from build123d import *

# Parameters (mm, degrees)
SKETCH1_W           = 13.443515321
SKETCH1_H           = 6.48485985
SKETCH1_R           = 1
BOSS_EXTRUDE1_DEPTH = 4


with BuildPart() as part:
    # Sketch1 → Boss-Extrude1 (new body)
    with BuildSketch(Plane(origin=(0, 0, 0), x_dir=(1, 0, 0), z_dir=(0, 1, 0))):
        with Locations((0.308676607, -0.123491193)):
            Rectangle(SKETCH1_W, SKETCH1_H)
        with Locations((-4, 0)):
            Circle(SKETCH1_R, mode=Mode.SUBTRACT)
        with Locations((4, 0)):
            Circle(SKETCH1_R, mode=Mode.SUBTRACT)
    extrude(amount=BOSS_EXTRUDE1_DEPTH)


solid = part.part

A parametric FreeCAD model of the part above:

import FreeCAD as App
import Part
import Sketcher

doc = App.newDocument("Part")
params = doc.addObject("Spreadsheet::Sheet", "Params")
for row, (alias, value) in enumerate([
    ("sketch1_diameter", "2 mm"),
    ("pad1_length", "4 mm"),
], start=1):
    params.set(f"A{row}", alias)
    params.set(f"B{row}", "=" + value)
    params.setAlias(f"B{row}", alias)

body = doc.addObject("PartDesign::Body", "Body")

# Sketch on XZ plane
sketch1 = body.newObject("Sketcher::SketchObject", "Sketch")
sketch1.AttachmentSupport = (doc.getObject("XZ_Plane"), [""])
sketch1.MapMode = "FlatFace"
sketch1.addGeometry([
    Part.LineSegment(App.Vector(-6.4, -3.1, 0), App.Vector(-6.4, 3.4, 0)),  # 0
    Part.LineSegment(App.Vector(-6.4, 3.4, 0), App.Vector(7, 3.4, 0)),  # 1
    Part.LineSegment(App.Vector(7, 3.4, 0), App.Vector(7, -3.1, 0)),  # 2
    Part.LineSegment(App.Vector(7, -3.1, 0), App.Vector(-6.4, -3.1, 0)),  # 3
    Part.Circle(App.Vector(-4, 0, 0), App.Vector(0, 0, 1), 1),  # 4
    Part.Circle(App.Vector(4, 0, 0), App.Vector(0, 0, 1), 1),  # 5
], False)
sketch1.addConstraint([
    Sketcher.Constraint("Coincident", 0, 2, 1, 1),
    Sketcher.Constraint("Coincident", 1, 2, 2, 1),
    Sketcher.Constraint("Coincident", 2, 2, 3, 1),
    Sketcher.Constraint("Coincident", 3, 2, 0, 1),
    Sketcher.Constraint("Vertical", 0),
    Sketcher.Constraint("Horizontal", 1),
    Sketcher.Constraint("Vertical", 2),
    Sketcher.Constraint("Horizontal", 3),
    Sketcher.Constraint("Equal", 4, 5),
    Sketcher.Constraint("Symmetric", 4, 3, 5, 3, -1, 1),
    Sketcher.Constraint("PointOnObject", 4, 3, -1),
    Sketcher.Constraint("Diameter", 4, 2.0),
    Sketcher.Constraint("DistanceX", 4, 3, -1, 1, 4.0),
    Sketcher.Constraint("DistanceY", 0, 1, 0, 2, 6.48486),
    Sketcher.Constraint("DistanceX", 1, 1, 1, 2, 13.443515),
    Sketcher.Constraint("DistanceX", 0, 2, -1, 1, 6.413081),
    Sketcher.Constraint("DistanceY", -1, 1, 0, 2, 3.365921),
])
sketch1.setExpression("Constraints[11]", "Params.sketch1_diameter")
pad1 = body.newObject("PartDesign::Pad", "Pad")
pad1.Profile = sketch1
pad1.setExpression("Length", "Params.pad1_length")
pad1.Reversed = True

doc.recompute()
